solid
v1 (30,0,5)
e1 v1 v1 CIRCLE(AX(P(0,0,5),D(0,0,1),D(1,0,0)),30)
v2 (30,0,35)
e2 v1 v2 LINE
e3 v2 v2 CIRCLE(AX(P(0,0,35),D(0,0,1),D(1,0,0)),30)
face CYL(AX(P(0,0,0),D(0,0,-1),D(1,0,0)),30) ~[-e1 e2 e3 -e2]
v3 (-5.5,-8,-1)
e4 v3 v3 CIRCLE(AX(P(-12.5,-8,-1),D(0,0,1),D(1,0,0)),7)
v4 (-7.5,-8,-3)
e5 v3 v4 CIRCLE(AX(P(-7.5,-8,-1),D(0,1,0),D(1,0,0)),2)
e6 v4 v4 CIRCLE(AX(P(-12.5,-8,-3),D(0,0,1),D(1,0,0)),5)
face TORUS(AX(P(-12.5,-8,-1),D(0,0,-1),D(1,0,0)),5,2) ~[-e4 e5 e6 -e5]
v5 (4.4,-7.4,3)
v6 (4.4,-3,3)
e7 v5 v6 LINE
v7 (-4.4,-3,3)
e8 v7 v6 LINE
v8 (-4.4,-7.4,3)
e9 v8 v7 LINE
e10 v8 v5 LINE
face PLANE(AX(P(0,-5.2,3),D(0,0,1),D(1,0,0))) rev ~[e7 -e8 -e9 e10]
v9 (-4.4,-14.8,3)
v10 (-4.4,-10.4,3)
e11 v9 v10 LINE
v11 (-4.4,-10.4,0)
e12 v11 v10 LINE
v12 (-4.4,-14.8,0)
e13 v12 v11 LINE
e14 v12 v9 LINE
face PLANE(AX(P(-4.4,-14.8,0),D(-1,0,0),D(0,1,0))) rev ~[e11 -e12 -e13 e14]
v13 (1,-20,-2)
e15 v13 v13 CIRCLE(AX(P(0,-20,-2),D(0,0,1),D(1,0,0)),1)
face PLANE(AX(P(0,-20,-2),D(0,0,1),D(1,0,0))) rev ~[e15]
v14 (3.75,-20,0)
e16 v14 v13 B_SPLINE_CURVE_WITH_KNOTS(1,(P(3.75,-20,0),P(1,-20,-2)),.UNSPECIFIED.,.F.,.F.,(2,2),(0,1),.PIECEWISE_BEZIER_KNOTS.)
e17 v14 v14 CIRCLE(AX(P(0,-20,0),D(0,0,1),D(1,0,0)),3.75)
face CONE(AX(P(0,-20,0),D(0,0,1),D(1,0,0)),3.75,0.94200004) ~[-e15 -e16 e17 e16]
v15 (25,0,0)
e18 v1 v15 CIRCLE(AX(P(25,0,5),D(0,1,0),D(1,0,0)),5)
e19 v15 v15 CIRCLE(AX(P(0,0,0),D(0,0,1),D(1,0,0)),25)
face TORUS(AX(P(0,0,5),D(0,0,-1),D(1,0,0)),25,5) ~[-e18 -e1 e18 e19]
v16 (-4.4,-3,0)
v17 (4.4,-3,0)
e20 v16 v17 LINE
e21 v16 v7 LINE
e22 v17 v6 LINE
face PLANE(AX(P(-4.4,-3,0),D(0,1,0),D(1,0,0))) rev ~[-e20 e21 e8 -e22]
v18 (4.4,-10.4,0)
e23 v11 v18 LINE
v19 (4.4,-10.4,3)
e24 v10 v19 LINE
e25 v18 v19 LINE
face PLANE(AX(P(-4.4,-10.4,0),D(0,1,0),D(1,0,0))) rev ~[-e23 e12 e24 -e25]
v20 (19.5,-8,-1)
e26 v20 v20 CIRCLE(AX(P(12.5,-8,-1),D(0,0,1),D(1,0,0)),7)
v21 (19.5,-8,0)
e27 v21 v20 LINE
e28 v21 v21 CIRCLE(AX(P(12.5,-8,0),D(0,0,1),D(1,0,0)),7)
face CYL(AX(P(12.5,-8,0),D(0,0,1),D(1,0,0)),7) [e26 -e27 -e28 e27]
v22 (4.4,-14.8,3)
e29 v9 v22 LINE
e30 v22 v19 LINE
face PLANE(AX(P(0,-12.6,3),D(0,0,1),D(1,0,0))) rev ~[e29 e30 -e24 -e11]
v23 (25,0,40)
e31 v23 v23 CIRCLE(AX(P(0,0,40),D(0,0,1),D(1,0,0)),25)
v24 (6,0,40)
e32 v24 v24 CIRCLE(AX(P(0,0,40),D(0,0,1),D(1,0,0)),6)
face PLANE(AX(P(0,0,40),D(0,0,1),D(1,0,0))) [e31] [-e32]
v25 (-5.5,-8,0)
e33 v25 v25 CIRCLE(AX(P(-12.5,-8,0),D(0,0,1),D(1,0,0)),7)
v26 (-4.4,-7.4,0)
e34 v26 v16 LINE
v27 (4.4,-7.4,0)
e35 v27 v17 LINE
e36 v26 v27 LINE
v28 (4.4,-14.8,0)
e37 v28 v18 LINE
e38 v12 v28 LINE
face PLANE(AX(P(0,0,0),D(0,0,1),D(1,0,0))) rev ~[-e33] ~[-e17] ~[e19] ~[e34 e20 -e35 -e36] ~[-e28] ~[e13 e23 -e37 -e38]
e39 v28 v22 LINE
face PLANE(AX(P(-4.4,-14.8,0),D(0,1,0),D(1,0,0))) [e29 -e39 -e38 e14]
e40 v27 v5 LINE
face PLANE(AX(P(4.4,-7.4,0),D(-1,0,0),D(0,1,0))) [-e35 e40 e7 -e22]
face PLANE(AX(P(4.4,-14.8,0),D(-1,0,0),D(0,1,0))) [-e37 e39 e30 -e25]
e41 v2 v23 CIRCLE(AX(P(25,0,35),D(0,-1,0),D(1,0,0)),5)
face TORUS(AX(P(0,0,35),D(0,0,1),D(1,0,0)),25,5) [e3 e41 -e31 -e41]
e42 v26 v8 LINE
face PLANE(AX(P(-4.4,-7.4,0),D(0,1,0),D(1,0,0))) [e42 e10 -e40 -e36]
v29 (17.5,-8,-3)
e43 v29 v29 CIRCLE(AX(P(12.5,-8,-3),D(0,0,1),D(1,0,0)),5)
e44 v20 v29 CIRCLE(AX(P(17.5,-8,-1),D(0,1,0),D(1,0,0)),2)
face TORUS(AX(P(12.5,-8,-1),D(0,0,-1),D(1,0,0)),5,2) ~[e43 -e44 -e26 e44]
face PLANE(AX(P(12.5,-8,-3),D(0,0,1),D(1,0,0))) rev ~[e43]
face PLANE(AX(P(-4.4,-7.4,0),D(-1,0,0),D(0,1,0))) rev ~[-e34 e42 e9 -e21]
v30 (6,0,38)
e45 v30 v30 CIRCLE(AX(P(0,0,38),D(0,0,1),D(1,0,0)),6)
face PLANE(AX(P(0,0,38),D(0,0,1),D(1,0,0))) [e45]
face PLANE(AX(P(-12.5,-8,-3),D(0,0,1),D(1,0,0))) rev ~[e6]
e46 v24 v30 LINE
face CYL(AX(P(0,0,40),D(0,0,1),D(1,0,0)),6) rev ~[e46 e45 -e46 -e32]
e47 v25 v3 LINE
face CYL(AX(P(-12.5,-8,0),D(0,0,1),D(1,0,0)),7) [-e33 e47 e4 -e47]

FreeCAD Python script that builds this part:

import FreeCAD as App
import Part
import Sketcher

V = App.Vector
Q = App.Units.Quantity


def edges_at(feature, points):
    """Names of the edges that pass closest to the given points."""
    edges = feature.Shape.Edges
    near = lambda p: min(range(len(edges)), key=lambda i: edges[i].distToShape(Part.Vertex(*p))[0])
    return sorted({f"Edge{near(p) + 1}" for p in points})


def add_polygon(sketch, points):
    """Adds a closed chain of lines whose ends are joined by coincident constraints."""
    first, n = sketch.GeometryCount, len(points)
    for a, b in zip(points, points[1:] + points[:1]):
        sketch.addGeometry(Part.LineSegment(App.Vector(*a, 0), App.Vector(*b, 0)), False)
    for i in range(n):
        sketch.addConstraint(Sketcher.Constraint("Coincident", first + i, 2, first + (i + 1) % n, 1))

doc = App.newDocument("Part")
body = doc.addObject("PartDesign::Body", "Body")

# Sketch on XY plane
sketch1 = body.newObject("Sketcher::SketchObject", "Sketch")
sketch1.AttachmentSupport = (doc.getObject("XY_Plane"), [""])
sketch1.MapMode = "FlatFace"
sketch1.AttachmentOffset = App.Placement(V(0, 0, 40), App.Rotation())
sketch1.addGeometry(Part.Circle(V(0, 0, 0), V(0, 0, 1), 6), False)
sketch1.addConstraint(Sketcher.Constraint("Coincident", 0, 3, -1, 1))
sketch1.addConstraint(Sketcher.Constraint("Diameter", 0, Q("12 mm")))
pad1 = body.newObject("PartDesign::Pad", "Pad")
pad1.Profile = sketch1
pad1.Length = 2
pad1.Reversed = True
body2 = doc.addObject("PartDesign::Body", "Body001")
body2.AllowCompound = True

# Sketch on XY plane
sketch2 = body2.newObject("Sketcher::SketchObject", "Sketch001")
sketch2.AttachmentSupport = (doc.getObject("XY_Plane001"), [""])
sketch2.MapMode = "FlatFace"
sketch2.addGeometry(Part.Circle(V(12.5, -8, 0), V(0, 0, 1), 7), False)
sketch2.addGeometry(Part.Circle(V(-12.5, -8, 0), V(0, 0, 1), 7), False)
sketch2.addConstraint(Sketcher.Constraint("Equal", 0, 1))
sketch2.addConstraint(Sketcher.Constraint("Symmetric", 0, 3, 1, 3, -2))
sketch2.addConstraint(Sketcher.Constraint("Diameter", 0, Q("14 mm")))
sketch2.addConstraint(Sketcher.Constraint("DistanceY", 0, 3, -1, 1, Q("8 mm")))
sketch2.addConstraint(Sketcher.Constraint("DistanceX", 1, 3, 0, 3, Q("25 mm")))
pad2 = body2.newObject("PartDesign::Pad", "Pad001")
pad2.Profile = sketch2
pad2.Length = 3
pad2.Reversed = True
body3 = doc.addObject("PartDesign::Body", "Body002")

# Sketch on XY plane
sketch3 = body3.newObject("Sketcher::SketchObject", "Sketch002")
sketch3.AttachmentSupport = (doc.getObject("XY_Plane002"), [""])
sketch3.MapMode = "FlatFace"
sketch3.addGeometry(Part.Circle(V(0, -20, 0), V(0, 0, 1), 3.75), False)
sketch3.addConstraint(Sketcher.Constraint("PointOnObject", 0, 3, -2))
sketch3.addConstraint(Sketcher.Constraint("Diameter", 0, Q("7.5 mm")))
sketch3.addConstraint(Sketcher.Constraint("DistanceY", 0, 3, -1, 1, Q("20 mm")))

# Sketch on XY plane
sketch4 = body3.newObject("Sketcher::SketchObject", "Sketch003")
sketch4.AttachmentSupport = (doc.getObject("XY_Plane002"), [""])
sketch4.MapMode = "FlatFace"
sketch4.AttachmentOffset = App.Placement(V(0, 0, -2), App.Rotation())
sketch4.addGeometry(Part.Circle(V(0, -20, 0), V(0, 0, 1), 1), False)
sketch4.addConstraint(Sketcher.Constraint("PointOnObject", 0, 3, -2))
sketch4.addConstraint(Sketcher.Constraint("Diameter", 0, Q("2 mm")))
sketch4.addConstraint(Sketcher.Constraint("DistanceY", 0, 3, -1, 1, Q("20 mm")))

additiveloft = body3.newObject("PartDesign::AdditiveLoft", "AdditiveLoft")
additiveloft.Profile = sketch3
additiveloft.Sections = [sketch4]
body4 = doc.addObject("PartDesign::Body", "Body003")
body4.AllowCompound = True

# Sketch on XY plane
sketch5 = body4.newObject("Sketcher::SketchObject", "Sketch004")
sketch5.AttachmentSupport = (doc.getObject("XY_Plane003"), [""])
sketch5.MapMode = "FlatFace"
add_polygon(sketch5, [(-4.4, -3), (-4.4, -7.4), (4.4, -7.4), (4.4, -3)])  # lines 0-3
add_polygon(sketch5, [(-4.4, -10.4), (-4.4, -14.8), (4.4, -14.8), (4.4, -10.4)])  # lines 4-7
sketch5.addConstraint(Sketcher.Constraint("Vertical", 0))
sketch5.addConstraint(Sketcher.Constraint("Horizontal", 1))
sketch5.addConstraint(Sketcher.Constraint("Vertical", 2))
sketch5.addConstraint(Sketcher.Constraint("Horizontal", 3))
sketch5.addConstraint(Sketcher.Constraint("Vertical", 4))
sketch5.addConstraint(Sketcher.Constraint("Horizontal", 5))
sketch5.addConstraint(Sketcher.Constraint("Vertical", 6))
sketch5.addConstraint(Sketcher.Constraint("Horizontal", 7))
sketch5.addConstraint(Sketcher.Constraint("Vertical", 3, 2, 4, 2))
sketch5.addConstraint(Sketcher.Constraint("Vertical", 2, 2, 5, 2))
sketch5.addConstraint(Sketcher.Constraint("Equal", 2, 4))
sketch5.addConstraint(Sketcher.Constraint("DistanceX", 1, 1, 1, 2, Q("8.8 mm")))
sketch5.addConstraint(Sketcher.Constraint("DistanceY", 0, 2, 0, 1, Q("4.4 mm")))
sketch5.addConstraint(Sketcher.Constraint("DistanceY", 2, 2, -1, 1, Q("3 mm")))
sketch5.addConstraint(Sketcher.Constraint("DistanceY", 6, 2, 1, 2, Q("3 mm")))
sketch5.addConstraint(Sketcher.Constraint("DistanceX", 0, 2, -1, 1, Q("4.4 mm")))
pad3 = body4.newObject("PartDesign::Pad", "Pad002")
pad3.Profile = sketch5
pad3.Length = 3
body5 = doc.addObject("PartDesign::Body", "Body004")

# Sketch on XY plane
sketch6 = body5.newObject("Sketcher::SketchObject", "Sketch005")
sketch6.AttachmentSupport = (doc.getObject("XY_Plane004"), [""])
sketch6.MapMode = "FlatFace"
sketch6.addGeometry(Part.Circle(V(0, 0, 0), V(0, 0, 1), 30), False)
sketch6.addConstraint(Sketcher.Constraint("Coincident", 0, 3, -1, 1))
sketch6.addConstraint(Sketcher.Constraint("Diameter", 0, Q("60 mm")))
pad4 = body5.newObject("PartDesign::Pad", "Pad003")
pad4.Profile = sketch6
pad4.Length = 40
doc.recompute()

boolean = body5.newObject("PartDesign::Boolean", "Boolean")
boolean.Type = "Cut"
boolean.addObjects([body4])
doc.recompute()

boolean2 = body5.newObject("PartDesign::Boolean", "Boolean001")
boolean2.Type = "Fuse"
boolean2.addObjects([body3])
doc.recompute()

boolean3 = body5.newObject("PartDesign::Boolean", "Boolean002")
boolean3.Type = "Fuse"
boolean3.addObjects([body2])
doc.recompute()

fillet = body5.newObject("PartDesign::Fillet", "Fillet")
fillet.Base = (boolean3, edges_at(boolean3, [(-30, 0, 40)]))
fillet.Radius = 5
doc.recompute()

fillet2 = body5.newObject("PartDesign::Fillet", "Fillet001")
fillet2.Base = (fillet, edges_at(fillet, [(-30, 0, 0)]))
fillet2.Radius = 5
doc.recompute()

fillet3 = body5.newObject("PartDesign::Fillet", "Fillet002")
fillet3.Base = (fillet2, edges_at(fillet2, [(-19.5, -8, -3), (5.5, -8, -3)]))
fillet3.Radius = 2
doc.recompute()

boolean4 = body5.newObject("PartDesign::Boolean", "Boolean003")
boolean4.Type = "Cut"
boolean4.addObjects([body])

doc.recompute()
